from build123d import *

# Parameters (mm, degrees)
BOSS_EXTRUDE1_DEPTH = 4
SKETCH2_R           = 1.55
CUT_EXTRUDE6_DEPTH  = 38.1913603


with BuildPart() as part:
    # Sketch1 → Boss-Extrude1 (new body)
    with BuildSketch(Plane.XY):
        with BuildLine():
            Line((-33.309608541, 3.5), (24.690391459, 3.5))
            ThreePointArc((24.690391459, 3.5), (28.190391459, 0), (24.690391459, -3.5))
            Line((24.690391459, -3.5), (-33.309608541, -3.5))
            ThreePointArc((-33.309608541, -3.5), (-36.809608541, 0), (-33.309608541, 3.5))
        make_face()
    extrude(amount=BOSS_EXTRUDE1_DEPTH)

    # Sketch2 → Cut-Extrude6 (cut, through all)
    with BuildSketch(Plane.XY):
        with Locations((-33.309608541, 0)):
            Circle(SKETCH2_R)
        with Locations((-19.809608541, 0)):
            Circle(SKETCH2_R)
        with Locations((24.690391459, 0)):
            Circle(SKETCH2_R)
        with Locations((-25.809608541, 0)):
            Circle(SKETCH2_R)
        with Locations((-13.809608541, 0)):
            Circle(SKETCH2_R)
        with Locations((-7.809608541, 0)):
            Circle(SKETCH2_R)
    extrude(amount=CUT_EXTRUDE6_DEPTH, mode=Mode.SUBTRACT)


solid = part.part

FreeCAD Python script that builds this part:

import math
import FreeCAD as App
import Part
import Sketcher
from FreeCAD import Vector

doc = App.newDocument("Part")
body = doc.addObject("PartDesign::Body", "Body")

# Sketch on XY plane
sketch1 = body.newObject("Sketcher::SketchObject", "Sketch")
sketch1.AttachmentSupport = (doc.getObject("XY_Plane"), [""])
sketch1.MapMode = "FlatFace"
sketch1.addGeometry([
    Part.LineSegment(Vector(24.7, 3.5, 0), Vector(-33.3, 3.5, 0)),
    Part.ArcOfCircle(Part.Circle(Vector(-33.3, 0, 0), Vector(0, 0, 1), 3.5), math.radians(90), math.radians(270)),
    Part.LineSegment(Vector(-33.3, -3.5, 0), Vector(24.7, -3.5, 0)),
    Part.ArcOfCircle(Part.Circle(Vector(24.7, 0, 0), Vector(0, 0, 1), 3.5), math.radians(-90), math.radians(90)),
], False)
sketch1.addConstraint([
    Sketcher.Constraint("Tangent", 0, 2, 1, 1),
    Sketcher.Constraint("Tangent", 1, 2, 2, 1),
    Sketcher.Constraint("Tangent", 2, 2, 3, 1),
    Sketcher.Constraint("Tangent", 3, 2, 0, 1),
    Sketcher.Constraint("Horizontal", 0),
    Sketcher.Constraint("Horizontal", 2),
    Sketcher.Constraint("PointOnObject", 1, 3, -1),
    Sketcher.Constraint("Radius", 1, 3.5),
    Sketcher.Constraint("DistanceX", 0, 2, 0, 1, 58.0),
    Sketcher.Constraint("DistanceX", 1, 3, -1, 1, 33.309609),
])
pad1 = body.newObject("PartDesign::Pad", "Pad")
pad1.Profile = sketch1
pad1.Length = 4

# Sketch on XY plane
sketch2 = body.newObject("Sketcher::SketchObject", "Sketch001")
sketch2.AttachmentSupport = (doc.getObject("XY_Plane"), [""])
sketch2.MapMode = "FlatFace"
sketch2.addGeometry([
    Part.Circle(Vector(-33.3, 0, 0), Vector(0, 0, 1), 1.6),  # 0
    Part.Circle(Vector(-19.8, 0, 0), Vector(0, 0, 1), 1.6),  # 1
    Part.Circle(Vector(24.7, 0, 0), Vector(0, 0, 1), 1.6),  # 2
    Part.Circle(Vector(-25.8, 0, 0), Vector(0, 0, 1), 1.6),  # 3
    Part.Circle(Vector(-13.8, 0, 0), Vector(0, 0, 1), 1.6),  # 4
    Part.Circle(Vector(-7.8, 0, 0), Vector(0, 0, 1), 1.6),  # 5
], False)
sketch2.addConstraint([
    Sketcher.Constraint("Equal", 0, 1),
    Sketcher.Constraint("Equal", 1, 2),
    Sketcher.Constraint("Equal", 2, 3),
    Sketcher.Constraint("Equal", 3, 4),
    Sketcher.Constraint("Equal", 4, 5),
    Sketcher.Constraint("PointOnObject", 0, 3, -1),
    Sketcher.Constraint("PointOnObject", 1, 3, -1),
    Sketcher.Constraint("PointOnObject", 2, 3, -1),
    Sketcher.Constraint("PointOnObject", 3, 3, -1),
    Sketcher.Constraint("PointOnObject", 4, 3, -1),
    Sketcher.Constraint("PointOnObject", 5, 3, -1),
    Sketcher.Constraint("Diameter", 0, 3.1),
    Sketcher.Constraint("DistanceX", 0, 3, 2, 3, 58.0),
    Sketcher.Constraint("DistanceX", 3, 3, 1, 3, 6.0),
    Sketcher.Constraint("DistanceX", 1, 3, 4, 3, 6.0),
    Sketcher.Constraint("DistanceX", 4, 3, 5, 3, 6.0),
    Sketcher.Constraint("DistanceX", 0, 3, 1, 3, 13.5),
    Sketcher.Constraint("DistanceX", 0, 3, -1, 1, 33.309609),
])
pocket1 = body.newObject("PartDesign::Pocket", "Pocket")
pocket1.Profile = sketch2
pocket1.Type = "ThroughAll"
pocket1.Reversed = True

doc.recompute()
